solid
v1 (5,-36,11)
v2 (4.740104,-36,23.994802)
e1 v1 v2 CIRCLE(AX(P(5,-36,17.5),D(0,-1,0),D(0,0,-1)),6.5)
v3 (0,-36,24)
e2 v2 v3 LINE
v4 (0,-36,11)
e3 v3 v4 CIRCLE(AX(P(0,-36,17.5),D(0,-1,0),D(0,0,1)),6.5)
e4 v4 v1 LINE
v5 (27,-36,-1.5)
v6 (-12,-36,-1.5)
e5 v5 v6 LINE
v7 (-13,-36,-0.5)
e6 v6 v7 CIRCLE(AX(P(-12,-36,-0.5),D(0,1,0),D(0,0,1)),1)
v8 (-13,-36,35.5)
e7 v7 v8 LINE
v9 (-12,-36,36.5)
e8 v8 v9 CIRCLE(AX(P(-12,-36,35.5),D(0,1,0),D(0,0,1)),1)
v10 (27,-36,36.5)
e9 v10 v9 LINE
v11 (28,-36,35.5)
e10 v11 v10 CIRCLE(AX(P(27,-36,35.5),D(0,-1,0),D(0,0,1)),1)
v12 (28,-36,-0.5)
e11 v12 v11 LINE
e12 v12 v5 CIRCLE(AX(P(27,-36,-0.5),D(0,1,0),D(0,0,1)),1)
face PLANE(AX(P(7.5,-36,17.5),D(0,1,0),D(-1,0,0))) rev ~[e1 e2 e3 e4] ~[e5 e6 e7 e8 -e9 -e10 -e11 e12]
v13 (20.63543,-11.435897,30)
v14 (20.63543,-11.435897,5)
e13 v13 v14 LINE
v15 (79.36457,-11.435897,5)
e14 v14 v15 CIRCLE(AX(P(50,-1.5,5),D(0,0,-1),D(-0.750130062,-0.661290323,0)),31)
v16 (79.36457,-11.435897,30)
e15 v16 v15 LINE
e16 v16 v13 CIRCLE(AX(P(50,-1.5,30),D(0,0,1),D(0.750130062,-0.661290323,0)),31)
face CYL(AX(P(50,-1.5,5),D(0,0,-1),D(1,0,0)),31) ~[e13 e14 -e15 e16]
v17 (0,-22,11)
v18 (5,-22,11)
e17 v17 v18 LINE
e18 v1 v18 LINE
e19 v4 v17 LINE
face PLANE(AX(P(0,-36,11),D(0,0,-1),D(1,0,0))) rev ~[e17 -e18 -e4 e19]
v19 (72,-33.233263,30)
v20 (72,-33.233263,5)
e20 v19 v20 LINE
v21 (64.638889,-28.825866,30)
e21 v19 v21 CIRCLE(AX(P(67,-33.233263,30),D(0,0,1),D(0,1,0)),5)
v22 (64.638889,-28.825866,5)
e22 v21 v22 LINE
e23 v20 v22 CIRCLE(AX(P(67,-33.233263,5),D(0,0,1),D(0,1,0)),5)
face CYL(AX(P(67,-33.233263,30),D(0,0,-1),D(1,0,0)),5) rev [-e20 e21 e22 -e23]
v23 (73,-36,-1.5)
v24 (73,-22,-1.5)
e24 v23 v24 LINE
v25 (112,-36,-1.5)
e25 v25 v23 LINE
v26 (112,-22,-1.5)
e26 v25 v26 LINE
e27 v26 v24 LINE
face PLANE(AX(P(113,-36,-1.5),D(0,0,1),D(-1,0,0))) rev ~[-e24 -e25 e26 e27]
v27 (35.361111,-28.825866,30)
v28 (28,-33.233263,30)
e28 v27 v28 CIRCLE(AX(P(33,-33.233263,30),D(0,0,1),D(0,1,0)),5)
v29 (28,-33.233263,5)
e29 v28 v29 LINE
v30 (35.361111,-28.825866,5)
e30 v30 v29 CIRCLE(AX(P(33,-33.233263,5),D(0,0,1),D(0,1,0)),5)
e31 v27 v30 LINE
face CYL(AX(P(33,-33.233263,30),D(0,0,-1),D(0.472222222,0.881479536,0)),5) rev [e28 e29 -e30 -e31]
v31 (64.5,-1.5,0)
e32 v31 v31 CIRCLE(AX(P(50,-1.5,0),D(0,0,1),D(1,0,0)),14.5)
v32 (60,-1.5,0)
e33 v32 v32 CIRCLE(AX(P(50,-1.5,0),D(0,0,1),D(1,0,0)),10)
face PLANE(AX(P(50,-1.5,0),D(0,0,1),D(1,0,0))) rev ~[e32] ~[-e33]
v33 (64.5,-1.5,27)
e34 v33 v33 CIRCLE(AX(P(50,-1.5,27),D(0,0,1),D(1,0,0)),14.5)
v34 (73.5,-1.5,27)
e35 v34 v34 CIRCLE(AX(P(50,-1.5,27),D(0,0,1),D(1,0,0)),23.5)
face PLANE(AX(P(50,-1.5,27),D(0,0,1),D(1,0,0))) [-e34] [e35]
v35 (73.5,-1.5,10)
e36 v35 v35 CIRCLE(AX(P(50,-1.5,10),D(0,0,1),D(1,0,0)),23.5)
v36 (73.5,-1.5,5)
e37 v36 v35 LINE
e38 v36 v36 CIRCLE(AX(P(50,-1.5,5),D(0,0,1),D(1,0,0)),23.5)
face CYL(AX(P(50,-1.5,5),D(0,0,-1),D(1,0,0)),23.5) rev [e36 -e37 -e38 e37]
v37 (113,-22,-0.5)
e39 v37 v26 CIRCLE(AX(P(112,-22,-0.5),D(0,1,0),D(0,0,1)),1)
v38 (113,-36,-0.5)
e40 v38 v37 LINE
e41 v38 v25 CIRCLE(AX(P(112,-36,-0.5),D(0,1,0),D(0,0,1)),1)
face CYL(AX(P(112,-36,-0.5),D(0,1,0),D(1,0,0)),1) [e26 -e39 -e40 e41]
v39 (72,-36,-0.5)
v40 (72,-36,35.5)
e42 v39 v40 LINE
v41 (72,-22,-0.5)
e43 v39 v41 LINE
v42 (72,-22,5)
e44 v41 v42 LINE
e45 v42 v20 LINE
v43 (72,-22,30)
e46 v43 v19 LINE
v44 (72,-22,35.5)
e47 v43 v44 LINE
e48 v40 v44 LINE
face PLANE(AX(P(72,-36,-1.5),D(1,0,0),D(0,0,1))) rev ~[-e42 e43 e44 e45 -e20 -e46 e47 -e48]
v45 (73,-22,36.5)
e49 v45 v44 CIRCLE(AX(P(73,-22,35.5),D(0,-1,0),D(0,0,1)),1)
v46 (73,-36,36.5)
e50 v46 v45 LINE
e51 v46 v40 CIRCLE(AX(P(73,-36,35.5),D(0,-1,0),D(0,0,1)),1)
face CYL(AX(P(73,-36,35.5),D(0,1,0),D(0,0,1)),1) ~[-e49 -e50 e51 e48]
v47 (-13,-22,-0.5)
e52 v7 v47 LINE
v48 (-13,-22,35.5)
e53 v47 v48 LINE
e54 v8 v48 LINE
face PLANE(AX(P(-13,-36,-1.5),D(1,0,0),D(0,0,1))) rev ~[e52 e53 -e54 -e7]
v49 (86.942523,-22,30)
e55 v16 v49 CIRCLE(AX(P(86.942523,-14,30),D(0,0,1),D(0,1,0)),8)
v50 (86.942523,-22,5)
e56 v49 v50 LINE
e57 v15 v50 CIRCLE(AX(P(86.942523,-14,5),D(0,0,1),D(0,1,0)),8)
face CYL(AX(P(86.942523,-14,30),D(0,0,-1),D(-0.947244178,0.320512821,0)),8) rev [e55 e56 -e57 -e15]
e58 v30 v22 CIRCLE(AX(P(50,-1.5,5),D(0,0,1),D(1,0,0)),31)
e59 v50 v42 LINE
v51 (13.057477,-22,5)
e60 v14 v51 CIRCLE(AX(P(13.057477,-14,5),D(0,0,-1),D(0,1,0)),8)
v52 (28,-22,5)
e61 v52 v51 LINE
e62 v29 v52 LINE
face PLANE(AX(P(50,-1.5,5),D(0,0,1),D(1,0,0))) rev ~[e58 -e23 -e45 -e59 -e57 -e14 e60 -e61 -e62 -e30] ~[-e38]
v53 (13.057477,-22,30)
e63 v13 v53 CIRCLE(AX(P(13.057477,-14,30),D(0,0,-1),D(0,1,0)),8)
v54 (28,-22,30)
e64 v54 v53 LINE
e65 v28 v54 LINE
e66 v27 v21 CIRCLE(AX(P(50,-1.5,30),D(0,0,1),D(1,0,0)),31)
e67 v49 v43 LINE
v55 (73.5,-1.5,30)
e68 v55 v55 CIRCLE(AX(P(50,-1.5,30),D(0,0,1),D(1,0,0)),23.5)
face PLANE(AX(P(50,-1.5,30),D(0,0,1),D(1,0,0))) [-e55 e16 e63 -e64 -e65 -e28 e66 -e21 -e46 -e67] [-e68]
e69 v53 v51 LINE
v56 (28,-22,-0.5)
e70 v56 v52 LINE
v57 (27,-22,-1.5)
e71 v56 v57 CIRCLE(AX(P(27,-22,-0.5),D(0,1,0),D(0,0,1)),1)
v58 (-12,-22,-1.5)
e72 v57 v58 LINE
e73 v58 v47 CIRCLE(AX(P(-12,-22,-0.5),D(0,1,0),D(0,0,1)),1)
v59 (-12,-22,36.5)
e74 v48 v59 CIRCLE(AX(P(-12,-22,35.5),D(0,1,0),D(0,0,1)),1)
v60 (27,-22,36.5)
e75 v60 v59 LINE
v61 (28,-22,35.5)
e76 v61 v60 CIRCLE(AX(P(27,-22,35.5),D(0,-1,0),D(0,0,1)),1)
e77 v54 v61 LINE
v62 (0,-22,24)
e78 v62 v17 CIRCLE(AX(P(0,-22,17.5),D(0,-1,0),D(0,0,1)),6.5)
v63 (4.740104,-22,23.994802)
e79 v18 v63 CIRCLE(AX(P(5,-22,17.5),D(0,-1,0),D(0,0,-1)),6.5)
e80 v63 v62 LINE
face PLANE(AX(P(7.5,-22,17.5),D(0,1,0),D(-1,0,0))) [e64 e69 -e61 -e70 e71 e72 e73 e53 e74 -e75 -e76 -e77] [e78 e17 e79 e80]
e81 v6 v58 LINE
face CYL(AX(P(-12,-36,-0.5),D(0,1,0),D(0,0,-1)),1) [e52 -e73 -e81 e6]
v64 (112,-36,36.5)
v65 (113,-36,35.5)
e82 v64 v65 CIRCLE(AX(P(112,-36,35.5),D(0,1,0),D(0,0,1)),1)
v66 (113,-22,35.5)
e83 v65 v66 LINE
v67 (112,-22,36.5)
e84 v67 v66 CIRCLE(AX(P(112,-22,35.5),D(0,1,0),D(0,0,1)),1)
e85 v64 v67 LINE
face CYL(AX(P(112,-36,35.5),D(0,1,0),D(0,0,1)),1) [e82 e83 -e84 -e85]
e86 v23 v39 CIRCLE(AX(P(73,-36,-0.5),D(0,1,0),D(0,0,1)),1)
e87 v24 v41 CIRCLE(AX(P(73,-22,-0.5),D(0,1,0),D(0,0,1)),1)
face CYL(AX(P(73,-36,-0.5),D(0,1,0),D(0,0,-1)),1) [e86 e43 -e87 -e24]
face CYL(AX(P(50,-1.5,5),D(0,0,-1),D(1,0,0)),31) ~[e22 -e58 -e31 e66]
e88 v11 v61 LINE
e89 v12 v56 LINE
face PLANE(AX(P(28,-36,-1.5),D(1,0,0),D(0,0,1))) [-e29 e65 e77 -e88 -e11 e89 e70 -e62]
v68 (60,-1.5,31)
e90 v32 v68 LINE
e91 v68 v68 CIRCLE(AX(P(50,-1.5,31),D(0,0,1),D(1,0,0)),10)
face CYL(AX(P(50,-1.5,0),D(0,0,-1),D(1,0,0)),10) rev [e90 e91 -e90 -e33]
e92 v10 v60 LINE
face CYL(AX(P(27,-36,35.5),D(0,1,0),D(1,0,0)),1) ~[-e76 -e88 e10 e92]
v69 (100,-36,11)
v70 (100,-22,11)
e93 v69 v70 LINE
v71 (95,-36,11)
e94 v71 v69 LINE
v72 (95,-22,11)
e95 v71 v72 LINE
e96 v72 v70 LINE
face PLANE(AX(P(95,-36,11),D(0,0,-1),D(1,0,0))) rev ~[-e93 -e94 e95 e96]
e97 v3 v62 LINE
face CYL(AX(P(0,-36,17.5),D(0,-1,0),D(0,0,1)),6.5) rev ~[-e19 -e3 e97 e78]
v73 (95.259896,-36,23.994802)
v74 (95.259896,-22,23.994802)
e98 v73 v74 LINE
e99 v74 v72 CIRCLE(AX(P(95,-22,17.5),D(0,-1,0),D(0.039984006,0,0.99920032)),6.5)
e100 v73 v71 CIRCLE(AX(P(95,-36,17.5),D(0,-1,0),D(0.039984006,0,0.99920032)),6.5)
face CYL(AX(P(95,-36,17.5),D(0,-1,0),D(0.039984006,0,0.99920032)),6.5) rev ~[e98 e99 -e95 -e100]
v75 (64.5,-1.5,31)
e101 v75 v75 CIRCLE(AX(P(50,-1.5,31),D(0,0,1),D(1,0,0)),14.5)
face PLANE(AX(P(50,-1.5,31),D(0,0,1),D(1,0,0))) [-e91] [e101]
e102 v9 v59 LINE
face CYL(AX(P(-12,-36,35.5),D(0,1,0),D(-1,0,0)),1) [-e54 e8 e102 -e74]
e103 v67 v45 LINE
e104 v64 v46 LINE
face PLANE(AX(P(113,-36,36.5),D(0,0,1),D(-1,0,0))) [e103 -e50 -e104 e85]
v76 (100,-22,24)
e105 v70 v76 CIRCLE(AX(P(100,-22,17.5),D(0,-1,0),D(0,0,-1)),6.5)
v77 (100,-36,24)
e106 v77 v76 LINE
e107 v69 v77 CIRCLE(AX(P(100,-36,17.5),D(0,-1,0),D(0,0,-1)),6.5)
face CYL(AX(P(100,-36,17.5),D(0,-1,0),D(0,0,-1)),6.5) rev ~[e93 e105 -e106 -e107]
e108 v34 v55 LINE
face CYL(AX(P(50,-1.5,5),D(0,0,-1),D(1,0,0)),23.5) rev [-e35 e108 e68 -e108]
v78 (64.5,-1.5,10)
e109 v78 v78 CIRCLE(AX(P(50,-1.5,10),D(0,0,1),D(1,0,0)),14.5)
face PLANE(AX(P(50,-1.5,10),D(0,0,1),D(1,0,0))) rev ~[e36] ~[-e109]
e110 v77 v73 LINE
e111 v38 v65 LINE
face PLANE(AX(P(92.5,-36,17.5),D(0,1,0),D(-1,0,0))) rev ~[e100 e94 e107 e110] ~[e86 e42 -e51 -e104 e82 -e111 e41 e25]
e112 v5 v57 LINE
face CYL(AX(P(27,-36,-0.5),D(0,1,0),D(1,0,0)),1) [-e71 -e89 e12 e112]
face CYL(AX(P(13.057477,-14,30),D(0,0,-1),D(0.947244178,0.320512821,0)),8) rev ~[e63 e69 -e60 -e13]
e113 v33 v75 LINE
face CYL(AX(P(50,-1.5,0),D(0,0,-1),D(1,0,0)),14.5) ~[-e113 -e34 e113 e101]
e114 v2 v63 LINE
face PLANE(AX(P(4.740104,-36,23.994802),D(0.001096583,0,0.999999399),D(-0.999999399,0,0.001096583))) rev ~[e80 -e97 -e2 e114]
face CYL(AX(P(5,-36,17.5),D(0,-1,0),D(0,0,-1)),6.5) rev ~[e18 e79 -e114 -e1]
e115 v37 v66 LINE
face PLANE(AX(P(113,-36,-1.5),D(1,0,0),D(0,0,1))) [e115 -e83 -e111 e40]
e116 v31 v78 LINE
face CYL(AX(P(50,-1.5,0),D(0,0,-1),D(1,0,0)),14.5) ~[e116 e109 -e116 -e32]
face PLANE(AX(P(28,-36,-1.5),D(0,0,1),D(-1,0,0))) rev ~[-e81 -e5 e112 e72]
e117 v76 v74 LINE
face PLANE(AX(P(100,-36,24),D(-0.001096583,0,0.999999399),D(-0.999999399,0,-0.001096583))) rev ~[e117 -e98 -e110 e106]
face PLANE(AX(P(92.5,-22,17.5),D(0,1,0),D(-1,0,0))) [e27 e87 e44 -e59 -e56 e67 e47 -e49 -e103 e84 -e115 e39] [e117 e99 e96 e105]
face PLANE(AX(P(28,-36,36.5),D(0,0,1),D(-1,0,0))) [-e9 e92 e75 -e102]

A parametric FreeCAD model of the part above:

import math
import FreeCAD as App
import Part
import Sketcher

V = App.Vector


def edges_at(feature, points):
    """Names of the edges that pass closest to the given points."""
    edges = feature.Shape.Edges
    near = lambda p: min(range(len(edges)), key=lambda i: edges[i].distToShape(Part.Vertex(*p))[0])
    return sorted({f"Edge{near(p) + 1}" for p in points})


def add_polygon(sketch, points):
    """Adds a closed chain of lines whose ends are joined by coincident constraints."""
    first, n = sketch.GeometryCount, len(points)
    for a, b in zip(points, points[1:] + points[:1]):
        sketch.addGeometry(Part.LineSegment(App.Vector(*a, 0), App.Vector(*b, 0)), False)
    for i in range(n):
        sketch.addConstraint(Sketcher.Constraint("Coincident", first + i, 2, first + (i + 1) % n, 1))

doc = App.newDocument("Part")
body = doc.addObject("PartDesign::Body", "Body")

# Sketch on XY plane
sketch1 = body.newObject("Sketcher::SketchObject", "Sketch")
sketch1.AttachmentSupport = (doc.getObject("XY_Plane"), [""])
sketch1.MapMode = "FlatFace"
sketch1.addGeometry(Part.Circle(V(50, -2, 0), V(0, 0, 1), 14), False)
sketch1.addGeometry(Part.Circle(V(50, -2, 0), V(0, 0, 1), 10), False)
sketch1.addConstraint(Sketcher.Constraint("Coincident", 1, 3, 0, 3))
sketch1.addConstraint(Sketcher.Constraint("Diameter", 0, 29.0))
sketch1.addConstraint(Sketcher.Constraint("Diameter", 1, 20.0))
sketch1.addConstraint(Sketcher.Constraint("DistanceX", -1, 1, 0, 3, 50.0))
sketch1.addConstraint(Sketcher.Constraint("DistanceY", 0, 3, -1, 1, 1.5))
pad1 = body.newObject("PartDesign::Pad", "Pad")
pad1.Profile = sketch1
pad1.Length = 31

# Sketch on XY plane
sketch2 = body.newObject("Sketcher::SketchObject", "Sketch001")
sketch2.AttachmentSupport = (doc.getObject("XY_Plane"), [""])
sketch2.MapMode = "FlatFace"
sketch2.AttachmentOffset = App.Placement(V(0, 0, 10), App.Rotation())
sketch2.addGeometry(Part.Circle(V(50, -2, 0), V(0, 0, 1), 24), False)
sketch2.addGeometry(Part.Circle(V(50, -2, 0), V(0, 0, 1), 14), False)
sketch2.addConstraint(Sketcher.Constraint("Coincident", 1, 3, 0, 3))
sketch2.addConstraint(Sketcher.Constraint("Diameter", 0, 47.0))
sketch2.addConstraint(Sketcher.Constraint("Diameter", 1, 29.0))
sketch2.addConstraint(Sketcher.Constraint("DistanceX", -1, 1, 0, 3, 50.0))
sketch2.addConstraint(Sketcher.Constraint("DistanceY", 0, 3, -1, 1, 1.5))
pad2 = body.newObject("PartDesign::Pad", "Pad001")
pad2.Profile = sketch2
pad2.Length = 17

# Sketch on XY plane
sketch3 = body.newObject("Sketcher::SketchObject", "Sketch002")
sketch3.AttachmentSupport = (doc.getObject("XY_Plane"), [""])
sketch3.MapMode = "FlatFace"
sketch3.AttachmentOffset = App.Placement(V(0, 0, 5), App.Rotation())
sketch3.addGeometry(Part.Circle(V(50, -2, 0), V(0, 0, 1), 31), False)
sketch3.addGeometry(Part.Circle(V(50, -2, 0), V(0, 0, 1), 24), False)
sketch3.addConstraint(Sketcher.Constraint("Coincident", 1, 3, 0, 3))
sketch3.addConstraint(Sketcher.Constraint("Diameter", 0, 62.0))
sketch3.addConstraint(Sketcher.Constraint("Diameter", 1, 47.0))
sketch3.addConstraint(Sketcher.Constraint("DistanceX", -1, 1, 0, 3, 50.0))
sketch3.addConstraint(Sketcher.Constraint("DistanceY", 0, 3, -1, 1, 1.5))
pad3 = body.newObject("PartDesign::Pad", "Pad002")
pad3.Profile = sketch3
pad3.Length = 25

# Sketch on XZ plane
sketch4 = body.newObject("Sketcher::SketchObject", "Sketch003")
sketch4.AttachmentSupport = (doc.getObject("XZ_Plane"), [""])
sketch4.MapMode = "FlatFace"
sketch4.AttachmentOffset = App.Placement(V(0, 0, 36), App.Rotation())
add_polygon(sketch4, [(28, 36.5), (28, -1.5), (-13, -1.5), (-13, 36.5)])  # lines 0-3
sketch4.addGeometry(Part.ArcOfCircle(Part.Circle(V(5, 17.5, 0), V(0, 0, 1), 6.5), math.radians(-90), math.radians(92)), False)  # 4
sketch4.addGeometry(Part.LineSegment(V(4.7, 24, 0), V(0, 24, 0)), False)  # 5
sketch4.addGeometry(Part.ArcOfCircle(Part.Circle(V(0, 17.5, 0), V(0, 0, 1), 6.5), math.radians(90), math.radians(270)), False)  # 6
sketch4.addGeometry(Part.LineSegment(V(0, 11, 0), V(5, 11, 0)), False)  # 7
add_polygon(sketch4, [(113, 36.5), (113, -1.5), (72, -1.5), (72, 36.5)])  # lines 8-11
sketch4.addGeometry(Part.ArcOfCircle(Part.Circle(V(95, 17.5, 0), V(0, 0, 1), 6.5), math.radians(88), math.radians(270)), False)  # 12
sketch4.addGeometry(Part.LineSegment(V(95, 11, 0), V(100, 11, 0)), False)  # 13
sketch4.addGeometry(Part.ArcOfCircle(Part.Circle(V(100, 17.5, 0), V(0, 0, 1), 6.5), math.radians(-90), math.radians(90)), False)  # 14
sketch4.addGeometry(Part.LineSegment(V(100, 24, 0), V(95.3, 24, 0)), False)  # 15
sketch4.addConstraint(Sketcher.Constraint("Coincident", 4, 2, 5, 1))
sketch4.addConstraint(Sketcher.Constraint("Coincident", 5, 2, 6, 1))
sketch4.addConstraint(Sketcher.Constraint("Tangent", 6, 2, 7, 1))
sketch4.addConstraint(Sketcher.Constraint("Tangent", 7, 2, 4, 1))
sketch4.addConstraint(Sketcher.Constraint("Tangent", 12, 2, 13, 1))
sketch4.addConstraint(Sketcher.Constraint("Tangent", 13, 2, 14, 1))
sketch4.addConstraint(Sketcher.Constraint("Coincident", 14, 2, 15, 1))
sketch4.addConstraint(Sketcher.Constraint("Coincident", 15, 2, 12, 1))
sketch4.addConstraint(Sketcher.Constraint("Vertical", 0))
sketch4.addConstraint(Sketcher.Constraint("Horizontal", 1))
sketch4.addConstraint(Sketcher.Constraint("Vertical", 2))
sketch4.addConstraint(Sketcher.Constraint("Horizontal", 3))
sketch4.addConstraint(Sketcher.Constraint("Horizontal", 7))
sketch4.addConstraint(Sketcher.Constraint("Vertical", 8))
sketch4.addConstraint(Sketcher.Constraint("Horizontal", 9))
sketch4.addConstraint(Sketcher.Constraint("Vertical", 10))
sketch4.addConstraint(Sketcher.Constraint("Horizontal", 11))
sketch4.addConstraint(Sketcher.Constraint("Horizontal", 13))
sketch4.addConstraint(Sketcher.Constraint("Equal", 4, 6))
sketch4.addConstraint(Sketcher.Constraint("Equal", 6, 12))
sketch4.addConstraint(Sketcher.Constraint("Equal", 12, 14))
sketch4.addConstraint(Sketcher.Constraint("PointOnObject", 6, 3, -2))
sketch4.addConstraint(Sketcher.Constraint("PointOnObject", 5, 2, -2))
sketch4.addConstraint(Sketcher.Constraint("Horizontal", 6, 3, 12, 3))
sketch4.addConstraint(Sketcher.Constraint("Horizontal", 1, 2, 8, 2))
sketch4.addConstraint(Sketcher.Constraint("Horizontal", 3, 2, 10, 2))
sketch4.addConstraint(Sketcher.Constraint("Horizontal", 4, 2, 15, 2))
sketch4.addConstraint(Sketcher.Constraint("Vertical", 13, 2, 14, 2))
sketch4.addConstraint(Sketcher.Constraint("Equal", 3, 9))
sketch4.addConstraint(Sketcher.Constraint("Equal", 7, 13))
sketch4.addConstraint(Sketcher.Constraint("Radius", 4, 6.5))
sketch4.addConstraint(Sketcher.Constraint("DistanceX", 1, 2, 1, 1, 41.0))
sketch4.addConstraint(Sketcher.Constraint("DistanceX", 7, 1, 7, 2, 5.0))
sketch4.addConstraint(Sketcher.Constraint("DistanceY", 0, 2, 0, 1, 38.0))
sketch4.addConstraint(Sketcher.Constraint("DistanceX", -1, 1, 12, 3, 95.0))
sketch4.addConstraint(Sketcher.Constraint("DistanceX", -1, 1, 0, 2, 28.0))
sketch4.addConstraint(Sketcher.Constraint("DistanceY", -1, 1, 5, 2, 24.0))
sketch4.addConstraint(Sketcher.Constraint("DistanceX", -1, 1, 8, 2, 113.0))
sketch4.addConstraint(Sketcher.Constraint("DistanceY", 0, 2, 4, 3, 19.0))
sketch4.addConstraint(Sketcher.Constraint("Distance", 5, 4.740107))
pad4 = body.newObject("PartDesign::Pad", "Pad003")
pad4.Profile = sketch4
pad4.Length = 14
pad4.Reversed = True
doc.recompute()

fillet = body.newObject("PartDesign::Fillet", "Fillet")
fillet.Base = (pad4, edges_at(pad4, [(26.746, -22, 17.5)]))
fillet.Radius = 8
doc.recompute()

fillet2 = body.newObject("PartDesign::Fillet", "Fillet001")
fillet2.Base = (fillet, edges_at(fillet, [(28, -23.34, 17.5)]))
fillet2.Radius = 5
doc.recompute()

fillet3 = body.newObject("PartDesign::Fillet", "Fillet002")
fillet3.Base = (fillet2, edges_at(fillet2, [(72, -23.34, 17.5)]))
fillet3.Radius = 5
doc.recompute()

fillet4 = body.newObject("PartDesign::Fillet", "Fillet003")
fillet4.Base = (fillet3, edges_at(fillet3, [(73.254, -22, 17.5)]))
fillet4.Radius = 8
doc.recompute()

fillet5 = body.newObject("PartDesign::Fillet", "Fillet004")
fillet5.Base = (fillet4, edges_at(fillet4, [
    (28, -29, 36.5),
    (28, -29, -1.5),
    (72, -29, -1.5),
    (72, -29, 36.5),
]))
fillet5.Radius = 1
doc.recompute()

fillet6 = body.newObject("PartDesign::Fillet", "Fillet005")
fillet6.Base = (fillet5, edges_at(fillet5, [
    (-13, -29, -1.5),
    (-13, -29, 36.5),
    (113, -29, 36.5),
    (113, -29, -1.5),
]))
fillet6.Radius = 1

doc.recompute()
